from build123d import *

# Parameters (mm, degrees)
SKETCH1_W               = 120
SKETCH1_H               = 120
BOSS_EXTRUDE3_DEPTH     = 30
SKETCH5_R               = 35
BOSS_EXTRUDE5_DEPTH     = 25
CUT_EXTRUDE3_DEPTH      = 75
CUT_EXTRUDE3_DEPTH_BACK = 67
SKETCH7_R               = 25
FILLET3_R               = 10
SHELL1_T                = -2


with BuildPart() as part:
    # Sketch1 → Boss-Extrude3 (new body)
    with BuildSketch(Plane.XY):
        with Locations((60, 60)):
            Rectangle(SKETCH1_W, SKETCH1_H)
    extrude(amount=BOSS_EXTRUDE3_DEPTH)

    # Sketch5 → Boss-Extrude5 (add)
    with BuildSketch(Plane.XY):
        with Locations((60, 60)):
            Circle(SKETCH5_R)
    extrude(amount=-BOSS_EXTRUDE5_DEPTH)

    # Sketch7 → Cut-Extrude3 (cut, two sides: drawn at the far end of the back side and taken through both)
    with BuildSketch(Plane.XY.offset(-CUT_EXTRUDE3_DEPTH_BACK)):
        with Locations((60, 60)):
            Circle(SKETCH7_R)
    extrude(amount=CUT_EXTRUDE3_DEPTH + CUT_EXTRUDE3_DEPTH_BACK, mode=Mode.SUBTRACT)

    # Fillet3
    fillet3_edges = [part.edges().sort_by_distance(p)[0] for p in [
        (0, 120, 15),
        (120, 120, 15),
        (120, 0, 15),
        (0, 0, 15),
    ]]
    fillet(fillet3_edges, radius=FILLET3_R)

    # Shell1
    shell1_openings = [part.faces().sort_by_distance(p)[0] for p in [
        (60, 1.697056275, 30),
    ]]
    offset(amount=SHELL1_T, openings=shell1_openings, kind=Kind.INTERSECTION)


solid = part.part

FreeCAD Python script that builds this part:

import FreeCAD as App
import Part
import Sketcher

V = App.Vector
Q = App.Units.Quantity


def edges_at(feature, points):
    """Names of the edges that pass closest to the given points."""
    edges = feature.Shape.Edges
    near = lambda p: min(range(len(edges)), key=lambda i: edges[i].distToShape(Part.Vertex(*p))[0])
    return sorted({f"Edge{near(p) + 1}" for p in points})


def faces_at(feature, points):
    """Names of the faces that lie closest to the given points."""
    faces = feature.Shape.Faces
    near = lambda p: min(range(len(faces)), key=lambda i: faces[i].distToShape(Part.Vertex(*p))[0])
    return sorted({f"Face{near(p) + 1}" for p in points})


def add_polygon(sketch, points):
    """Adds a closed chain of lines whose ends are joined by coincident constraints."""
    first, n = sketch.GeometryCount, len(points)
    for a, b in zip(points, points[1:] + points[:1]):
        sketch.addGeometry(Part.LineSegment(App.Vector(*a, 0), App.Vector(*b, 0)), False)
    for i in range(n):
        sketch.addConstraint(Sketcher.Constraint("Coincident", first + i, 2, first + (i + 1) % n, 1))

doc = App.newDocument("Part")
body = doc.addObject("PartDesign::Body", "Body")

# Sketch on XY plane
sketch1 = body.newObject("Sketcher::SketchObject", "Sketch")
sketch1.AttachmentSupport = (doc.getObject("XY_Plane"), [""])
sketch1.MapMode = "FlatFace"
add_polygon(sketch1, [(0, 120), (0, 0), (120, 0), (120, 120)])  # lines 0-3
sketch1.addConstraint([
    Sketcher.Constraint("Vertical", 0),
    Sketcher.Constraint("Horizontal", 1),
    Sketcher.Constraint("Vertical", 2),
    Sketcher.Constraint("Horizontal", 3),
    Sketcher.Constraint("Coincident", 0, 2, -1, 1),
    Sketcher.Constraint("Equal", 3, 0),
    Sketcher.Constraint("DistanceX", 1, 1, 1, 2, Q("120 mm")),
])
pad1 = body.newObject("PartDesign::Pad", "Pad")
pad1.Profile = sketch1
pad1.Length = 30

# Sketch on XY plane
sketch2 = body.newObject("Sketcher::SketchObject", "Sketch001")
sketch2.AttachmentSupport = (doc.getObject("XY_Plane"), [""])
sketch2.MapMode = "FlatFace"
sketch2.addGeometry(Part.Circle(V(60, 60, 0), V(0, 0, 1), 35), False)
sketch2.addConstraint([
    Sketcher.Constraint("Diameter", 0, Q("70 mm")),
    Sketcher.Constraint("DistanceX", -1, 1, 0, 3, Q("60 mm")),
    Sketcher.Constraint("DistanceY", -1, 1, 0, 3, Q("60 mm")),
])
pad2 = body.newObject("PartDesign::Pad", "Pad001")
pad2.Profile = sketch2
pad2.Length = 25
pad2.Reversed = True

# Sketch on XY plane
sketch3 = body.newObject("Sketcher::SketchObject", "Sketch002")
sketch3.AttachmentSupport = (doc.getObject("XY_Plane"), [""])
sketch3.MapMode = "FlatFace"
sketch3.addGeometry(Part.Circle(V(60, 60, 0), V(0, 0, 1), 25), False)
sketch3.addConstraint([
    Sketcher.Constraint("Diameter", 0, Q("50 mm")),
    Sketcher.Constraint("DistanceX", -1, 1, 0, 3, Q("60 mm")),
    Sketcher.Constraint("DistanceY", -1, 1, 0, 3, Q("60 mm")),
])
pocket1 = body.newObject("PartDesign::Pocket", "Pocket")
pocket1.Profile = sketch3
pocket1.Type = "ThroughAll"
pocket1.Midplane = True
doc.recompute()

fillet = body.newObject("PartDesign::Fillet", "Fillet")
fillet.Base = (pocket1, edges_at(pocket1, [
    (0, 120, 15),
    (120, 120, 15),
    (120, 0, 15),
    (0, 0, 15),
]))
fillet.Radius = 10
doc.recompute()

thickness = body.newObject("PartDesign::Thickness", "Thickness")
thickness.Base = (fillet, faces_at(fillet, [(36, 36, 30)]))
thickness.Value = 2
thickness.Reversed = True
thickness.Join = "Intersection"

doc.recompute()
